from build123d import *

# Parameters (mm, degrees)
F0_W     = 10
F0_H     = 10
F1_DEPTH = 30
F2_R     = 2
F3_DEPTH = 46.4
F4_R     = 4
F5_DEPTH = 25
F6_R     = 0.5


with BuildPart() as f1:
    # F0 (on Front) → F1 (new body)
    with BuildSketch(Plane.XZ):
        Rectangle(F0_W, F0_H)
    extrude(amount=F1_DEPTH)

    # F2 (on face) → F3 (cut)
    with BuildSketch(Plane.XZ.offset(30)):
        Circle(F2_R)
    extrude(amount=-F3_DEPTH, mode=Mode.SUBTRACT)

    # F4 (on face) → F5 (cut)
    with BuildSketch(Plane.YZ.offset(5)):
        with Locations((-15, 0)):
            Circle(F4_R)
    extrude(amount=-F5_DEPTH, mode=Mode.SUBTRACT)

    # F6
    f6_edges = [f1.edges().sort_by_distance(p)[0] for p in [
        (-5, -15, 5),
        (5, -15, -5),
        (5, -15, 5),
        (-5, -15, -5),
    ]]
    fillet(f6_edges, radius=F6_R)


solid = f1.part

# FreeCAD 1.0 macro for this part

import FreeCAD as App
import Part
import Sketcher
Q = App.Units.Quantity


def edges_at(feature, points):
    """Names of the edges that pass closest to the given points."""
    edges = feature.Shape.Edges
    near = lambda p: min(range(len(edges)), key=lambda i: edges[i].distToShape(Part.Vertex(*p))[0])
    return sorted({f"Edge{near(p) + 1}" for p in points})


def add_polygon(sketch, points):
    """Adds a closed chain of lines whose ends are joined by coincident constraints."""
    first, n = sketch.GeometryCount, len(points)
    for a, b in zip(points, points[1:] + points[:1]):
        sketch.addGeometry(Part.LineSegment(App.Vector(*a, 0), App.Vector(*b, 0)), False)
    for i in range(n):
        sketch.addConstraint(Sketcher.Constraint("Coincident", first + i, 2, first + (i + 1) % n, 1))

doc = App.newDocument("Part")
body = doc.addObject("PartDesign::Body", "Body")

# Sketch on XZ plane
sketch1 = body.newObject("Sketcher::SketchObject", "Sketch")
sketch1.AttachmentSupport = (doc.getObject("XZ_Plane"), [""])
sketch1.MapMode = "FlatFace"
add_polygon(sketch1, [(-5, 5), (-5, -5), (5, -5), (5, 5)])  # lines 0-3
sketch1.addConstraint([
    Sketcher.Constraint("Vertical", 0),
    Sketcher.Constraint("Horizontal", 1),
    Sketcher.Constraint("Vertical", 2),
    Sketcher.Constraint("Horizontal", 3),
    Sketcher.Constraint("Symmetric", 0, 2, 2, 2, -1, 1),
    Sketcher.Constraint("Equal", 3, 0),
    Sketcher.Constraint("DistanceX", 1, 1, 1, 2, Q("10 mm")),
])
pad1 = body.newObject("PartDesign::Pad", "Pad")
pad1.Profile = sketch1
pad1.Length = 30

# Sketch on XZ plane
sketch2 = body.newObject("Sketcher::SketchObject", "Sketch001")
sketch2.AttachmentSupport = (doc.getObject("XZ_Plane"), [""])
sketch2.MapMode = "FlatFace"
sketch2.AttachmentOffset = App.Placement(App.Vector(0, 0, 30), App.Rotation())
sketch2.addGeometry(Part.Circle(App.Vector(0, 0, 0), App.Vector(0, 0, 1), 2), False)
sketch2.addConstraint([
    Sketcher.Constraint("Coincident", 0, 3, -1, 1),
    Sketcher.Constraint("Diameter", 0, Q("4 mm")),
])
pocket1 = body.newObject("PartDesign::Pocket", "Pocket")
pocket1.Profile = sketch2
pocket1.Length = 46.4

# Sketch on YZ plane
sketch3 = body.newObject("Sketcher::SketchObject", "Sketch002")
sketch3.AttachmentSupport = (doc.getObject("YZ_Plane"), [""])
sketch3.MapMode = "FlatFace"
sketch3.AttachmentOffset = App.Placement(App.Vector(0, 0, 5), App.Rotation())
sketch3.addGeometry(Part.Circle(App.Vector(-15, 0, 0), App.Vector(0, 0, 1), 4), False)
sketch3.addConstraint([
    Sketcher.Constraint("PointOnObject", 0, 3, -1),
    Sketcher.Constraint("Diameter", 0, Q("8 mm")),
    Sketcher.Constraint("DistanceX", 0, 3, -1, 1, Q("15 mm")),
])
pocket2 = body.newObject("PartDesign::Pocket", "Pocket001")
pocket2.Profile = sketch3
pocket2.Length = 25
doc.recompute()

fillet = body.newObject("PartDesign::Fillet", "Fillet")
fillet.Base = (pocket2, edges_at(pocket2, [
    (-5, -15, 5),
    (5, -15, -5),
    (5, -15, 5),
    (-5, -15, -5),
]))
fillet.Radius = 0.5

doc.recompute()
